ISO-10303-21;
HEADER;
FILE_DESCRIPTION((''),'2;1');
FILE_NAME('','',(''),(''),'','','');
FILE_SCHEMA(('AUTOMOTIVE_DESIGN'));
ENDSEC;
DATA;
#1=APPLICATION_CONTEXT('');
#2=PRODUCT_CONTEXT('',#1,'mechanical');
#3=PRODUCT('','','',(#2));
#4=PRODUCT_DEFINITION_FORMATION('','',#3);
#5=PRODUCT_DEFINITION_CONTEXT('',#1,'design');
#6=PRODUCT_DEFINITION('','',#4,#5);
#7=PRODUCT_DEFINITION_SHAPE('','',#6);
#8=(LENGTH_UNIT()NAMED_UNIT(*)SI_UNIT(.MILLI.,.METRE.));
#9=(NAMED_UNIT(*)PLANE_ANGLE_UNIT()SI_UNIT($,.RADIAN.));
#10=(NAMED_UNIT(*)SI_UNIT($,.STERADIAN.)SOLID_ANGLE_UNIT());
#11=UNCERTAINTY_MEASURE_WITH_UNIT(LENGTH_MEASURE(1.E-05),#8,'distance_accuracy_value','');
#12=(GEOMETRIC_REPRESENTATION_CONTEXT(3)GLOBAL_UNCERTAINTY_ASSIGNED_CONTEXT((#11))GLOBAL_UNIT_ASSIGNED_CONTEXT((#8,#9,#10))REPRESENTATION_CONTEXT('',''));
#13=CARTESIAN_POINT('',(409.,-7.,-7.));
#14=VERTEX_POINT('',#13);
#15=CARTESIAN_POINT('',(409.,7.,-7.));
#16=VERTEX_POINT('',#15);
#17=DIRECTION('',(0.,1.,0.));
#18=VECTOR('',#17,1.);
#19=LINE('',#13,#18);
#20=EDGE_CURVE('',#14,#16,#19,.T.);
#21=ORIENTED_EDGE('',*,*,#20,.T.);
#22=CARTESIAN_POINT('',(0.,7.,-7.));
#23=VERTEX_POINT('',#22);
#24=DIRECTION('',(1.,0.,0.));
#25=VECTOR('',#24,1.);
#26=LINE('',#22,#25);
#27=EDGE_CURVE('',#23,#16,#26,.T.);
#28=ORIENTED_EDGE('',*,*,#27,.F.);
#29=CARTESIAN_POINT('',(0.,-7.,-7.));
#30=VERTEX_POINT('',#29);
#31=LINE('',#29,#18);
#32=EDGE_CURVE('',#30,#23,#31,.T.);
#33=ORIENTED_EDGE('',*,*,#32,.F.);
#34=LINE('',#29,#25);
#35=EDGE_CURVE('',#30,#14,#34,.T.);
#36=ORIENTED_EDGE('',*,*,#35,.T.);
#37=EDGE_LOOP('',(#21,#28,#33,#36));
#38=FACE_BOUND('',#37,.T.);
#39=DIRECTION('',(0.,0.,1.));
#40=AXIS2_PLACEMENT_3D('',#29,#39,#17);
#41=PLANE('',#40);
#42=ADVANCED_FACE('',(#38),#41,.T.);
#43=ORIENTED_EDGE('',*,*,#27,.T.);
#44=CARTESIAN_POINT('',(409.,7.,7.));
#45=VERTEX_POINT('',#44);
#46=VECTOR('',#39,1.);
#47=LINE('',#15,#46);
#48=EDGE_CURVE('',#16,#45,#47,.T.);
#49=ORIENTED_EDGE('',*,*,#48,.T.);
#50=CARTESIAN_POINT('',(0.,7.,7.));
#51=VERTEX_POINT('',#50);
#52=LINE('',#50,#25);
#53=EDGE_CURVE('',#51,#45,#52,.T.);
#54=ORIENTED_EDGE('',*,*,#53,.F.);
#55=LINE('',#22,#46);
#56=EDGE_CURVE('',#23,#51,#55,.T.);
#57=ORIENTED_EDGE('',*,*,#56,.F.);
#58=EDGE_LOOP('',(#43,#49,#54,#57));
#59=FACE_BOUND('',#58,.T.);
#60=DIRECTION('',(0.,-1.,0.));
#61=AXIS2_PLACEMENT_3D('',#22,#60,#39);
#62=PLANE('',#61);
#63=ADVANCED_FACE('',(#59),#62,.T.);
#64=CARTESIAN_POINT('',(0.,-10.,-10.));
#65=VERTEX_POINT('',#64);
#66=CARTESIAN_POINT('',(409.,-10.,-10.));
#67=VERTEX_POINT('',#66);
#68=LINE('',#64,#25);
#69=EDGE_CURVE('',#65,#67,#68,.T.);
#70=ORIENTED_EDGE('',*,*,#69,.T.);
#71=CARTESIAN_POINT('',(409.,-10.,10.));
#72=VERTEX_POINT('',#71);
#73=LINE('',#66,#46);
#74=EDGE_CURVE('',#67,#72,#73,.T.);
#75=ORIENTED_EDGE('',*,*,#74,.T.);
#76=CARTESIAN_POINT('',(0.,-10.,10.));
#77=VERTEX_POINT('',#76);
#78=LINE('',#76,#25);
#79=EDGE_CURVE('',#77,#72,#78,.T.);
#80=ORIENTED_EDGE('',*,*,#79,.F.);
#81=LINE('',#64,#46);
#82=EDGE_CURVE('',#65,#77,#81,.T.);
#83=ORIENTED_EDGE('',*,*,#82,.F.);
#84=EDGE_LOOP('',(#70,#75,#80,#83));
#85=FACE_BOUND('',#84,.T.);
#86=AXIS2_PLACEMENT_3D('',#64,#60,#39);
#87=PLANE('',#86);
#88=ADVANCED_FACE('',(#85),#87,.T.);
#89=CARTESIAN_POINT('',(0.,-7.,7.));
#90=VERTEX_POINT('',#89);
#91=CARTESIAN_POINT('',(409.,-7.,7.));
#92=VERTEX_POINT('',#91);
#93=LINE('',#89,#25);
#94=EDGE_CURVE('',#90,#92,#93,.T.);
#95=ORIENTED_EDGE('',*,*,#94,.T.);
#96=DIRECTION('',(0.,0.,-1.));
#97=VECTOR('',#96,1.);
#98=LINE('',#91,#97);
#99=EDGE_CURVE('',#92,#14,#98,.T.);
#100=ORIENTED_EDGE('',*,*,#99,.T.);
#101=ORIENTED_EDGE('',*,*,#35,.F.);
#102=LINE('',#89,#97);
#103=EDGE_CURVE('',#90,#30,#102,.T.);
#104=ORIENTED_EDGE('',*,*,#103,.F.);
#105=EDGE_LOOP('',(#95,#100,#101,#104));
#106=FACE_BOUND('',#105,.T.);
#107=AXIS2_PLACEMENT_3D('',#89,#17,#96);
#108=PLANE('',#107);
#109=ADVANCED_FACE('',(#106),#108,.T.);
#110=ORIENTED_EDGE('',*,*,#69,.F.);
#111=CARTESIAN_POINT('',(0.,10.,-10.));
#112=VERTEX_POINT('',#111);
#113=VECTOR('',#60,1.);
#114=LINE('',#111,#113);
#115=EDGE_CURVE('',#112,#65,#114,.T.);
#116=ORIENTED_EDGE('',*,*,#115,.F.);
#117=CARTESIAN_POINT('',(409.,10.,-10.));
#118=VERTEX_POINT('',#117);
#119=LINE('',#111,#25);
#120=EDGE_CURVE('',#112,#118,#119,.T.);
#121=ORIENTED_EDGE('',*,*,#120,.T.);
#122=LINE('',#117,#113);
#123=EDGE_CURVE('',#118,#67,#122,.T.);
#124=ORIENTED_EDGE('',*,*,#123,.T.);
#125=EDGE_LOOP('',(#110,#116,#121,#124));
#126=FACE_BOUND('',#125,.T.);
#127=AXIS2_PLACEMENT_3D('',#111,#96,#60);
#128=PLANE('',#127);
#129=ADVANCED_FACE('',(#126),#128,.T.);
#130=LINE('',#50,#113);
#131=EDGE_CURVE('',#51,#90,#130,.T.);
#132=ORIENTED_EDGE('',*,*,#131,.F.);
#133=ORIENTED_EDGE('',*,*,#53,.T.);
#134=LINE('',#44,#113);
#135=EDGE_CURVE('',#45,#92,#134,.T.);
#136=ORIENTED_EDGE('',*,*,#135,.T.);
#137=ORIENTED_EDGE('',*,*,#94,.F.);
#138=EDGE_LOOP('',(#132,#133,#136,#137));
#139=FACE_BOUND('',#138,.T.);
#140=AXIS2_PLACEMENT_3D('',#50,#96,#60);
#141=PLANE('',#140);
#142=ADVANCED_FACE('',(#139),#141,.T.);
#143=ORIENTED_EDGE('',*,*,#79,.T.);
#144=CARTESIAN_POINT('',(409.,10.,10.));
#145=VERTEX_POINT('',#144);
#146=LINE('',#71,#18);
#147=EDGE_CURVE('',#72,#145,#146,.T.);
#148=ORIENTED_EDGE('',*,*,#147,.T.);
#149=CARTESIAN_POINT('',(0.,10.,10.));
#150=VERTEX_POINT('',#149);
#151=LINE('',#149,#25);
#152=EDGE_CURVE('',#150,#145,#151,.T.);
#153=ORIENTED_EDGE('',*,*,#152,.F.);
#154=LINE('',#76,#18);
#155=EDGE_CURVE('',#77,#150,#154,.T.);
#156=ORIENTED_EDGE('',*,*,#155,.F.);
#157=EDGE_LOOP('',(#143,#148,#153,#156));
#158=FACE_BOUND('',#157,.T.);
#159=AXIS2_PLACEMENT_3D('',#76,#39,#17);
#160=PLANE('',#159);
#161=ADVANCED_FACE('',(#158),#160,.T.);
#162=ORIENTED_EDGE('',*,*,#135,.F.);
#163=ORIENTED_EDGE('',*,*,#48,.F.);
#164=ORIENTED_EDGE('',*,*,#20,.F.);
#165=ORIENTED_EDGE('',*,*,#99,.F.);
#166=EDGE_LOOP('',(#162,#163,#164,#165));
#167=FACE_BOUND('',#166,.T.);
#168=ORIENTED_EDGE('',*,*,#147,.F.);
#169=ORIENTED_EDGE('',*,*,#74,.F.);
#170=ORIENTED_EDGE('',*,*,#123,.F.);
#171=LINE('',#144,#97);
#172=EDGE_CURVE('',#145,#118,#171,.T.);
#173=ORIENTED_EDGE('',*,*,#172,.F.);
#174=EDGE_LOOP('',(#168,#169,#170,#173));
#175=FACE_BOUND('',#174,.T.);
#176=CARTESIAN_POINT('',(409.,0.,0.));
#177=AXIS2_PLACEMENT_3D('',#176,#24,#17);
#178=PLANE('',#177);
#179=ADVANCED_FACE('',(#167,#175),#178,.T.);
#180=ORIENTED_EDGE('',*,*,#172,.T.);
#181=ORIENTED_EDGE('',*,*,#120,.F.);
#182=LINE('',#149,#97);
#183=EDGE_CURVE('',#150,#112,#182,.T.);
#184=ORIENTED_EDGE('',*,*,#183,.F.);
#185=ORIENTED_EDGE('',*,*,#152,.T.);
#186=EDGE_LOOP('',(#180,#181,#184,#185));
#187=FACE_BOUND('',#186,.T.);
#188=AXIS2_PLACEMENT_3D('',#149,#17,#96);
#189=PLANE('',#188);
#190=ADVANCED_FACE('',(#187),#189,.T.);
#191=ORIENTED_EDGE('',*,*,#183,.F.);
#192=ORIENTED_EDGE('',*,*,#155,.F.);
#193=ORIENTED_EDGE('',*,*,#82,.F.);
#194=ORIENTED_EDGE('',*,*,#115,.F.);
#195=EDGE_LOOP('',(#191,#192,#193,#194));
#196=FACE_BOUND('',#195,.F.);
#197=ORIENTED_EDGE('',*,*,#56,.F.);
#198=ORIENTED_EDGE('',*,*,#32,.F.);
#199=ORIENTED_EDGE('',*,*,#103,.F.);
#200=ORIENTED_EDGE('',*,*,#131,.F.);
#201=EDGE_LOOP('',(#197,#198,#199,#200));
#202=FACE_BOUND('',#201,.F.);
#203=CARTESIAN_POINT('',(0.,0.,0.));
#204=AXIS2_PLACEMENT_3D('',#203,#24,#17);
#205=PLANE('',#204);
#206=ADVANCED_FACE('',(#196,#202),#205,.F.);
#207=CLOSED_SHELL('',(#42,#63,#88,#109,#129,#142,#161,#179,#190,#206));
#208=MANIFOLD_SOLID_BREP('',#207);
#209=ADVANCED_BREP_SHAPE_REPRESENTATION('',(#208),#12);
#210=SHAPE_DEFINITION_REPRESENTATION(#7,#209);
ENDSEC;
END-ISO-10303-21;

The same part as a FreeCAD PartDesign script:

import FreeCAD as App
import Part
import Sketcher

V = App.Vector
Q = App.Units.Quantity

doc = App.newDocument("Part")
params = doc.addObject("Spreadsheet::Sheet", "Params")
for row, (alias, value) in enumerate([
    ("sketch1_width", "20 mm"),
    ("pad1_length", "409 mm"),
], start=1):
    params.set(f"A{row}", alias)
    params.set(f"B{row}", "=" + value)
    params.setAlias(f"B{row}", alias)

body = doc.addObject("PartDesign::Body", "Body")

# Sketch on YZ plane
sketch1 = body.newObject("Sketcher::SketchObject", "Sketch")
sketch1.AttachmentSupport = (doc.getObject("YZ_Plane"), [""])
sketch1.MapMode = "FlatFace"
sketch1.addGeometry(Part.LineSegment(V(10, 10, 0), V(-10, 10, 0)), False)
sketch1.addGeometry(Part.LineSegment(V(-10, 10, 0), V(-10, -10, 0)), False)
sketch1.addGeometry(Part.LineSegment(V(-10, -10, 0), V(10, -10, 0)), False)
sketch1.addGeometry(Part.LineSegment(V(10, -10, 0), V(10, 10, 0)), False)
sketch1.addGeometry(Part.LineSegment(V(7, 7, 0), V(7, -7, 0)), False)
sketch1.addGeometry(Part.LineSegment(V(7, -7, 0), V(-7, -7, 0)), False)
sketch1.addGeometry(Part.LineSegment(V(-7, -7, 0), V(-7, 7, 0)), False)
sketch1.addGeometry(Part.LineSegment(V(-7, 7, 0), V(7, 7, 0)), False)
sketch1.addConstraint(Sketcher.Constraint("Coincident", 0, 2, 1, 1))
sketch1.addConstraint(Sketcher.Constraint("Coincident", 1, 2, 2, 1))
sketch1.addConstraint(Sketcher.Constraint("Coincident", 2, 2, 3, 1))
sketch1.addConstraint(Sketcher.Constraint("Coincident", 3, 2, 0, 1))
sketch1.addConstraint(Sketcher.Constraint("Coincident", 4, 2, 5, 1))
sketch1.addConstraint(Sketcher.Constraint("Coincident", 5, 2, 6, 1))
sketch1.addConstraint(Sketcher.Constraint("Coincident", 6, 2, 7, 1))
sketch1.addConstraint(Sketcher.Constraint("Coincident", 7, 2, 4, 1))
sketch1.addConstraint(Sketcher.Constraint("Horizontal", 0))
sketch1.addConstraint(Sketcher.Constraint("Vertical", 1))
sketch1.addConstraint(Sketcher.Constraint("Horizontal", 2))
sketch1.addConstraint(Sketcher.Constraint("Vertical", 3))
sketch1.addConstraint(Sketcher.Constraint("Vertical", 4))
sketch1.addConstraint(Sketcher.Constraint("Horizontal", 5))
sketch1.addConstraint(Sketcher.Constraint("Vertical", 6))
sketch1.addConstraint(Sketcher.Constraint("Horizontal", 7))
sketch1.addConstraint(Sketcher.Constraint("Symmetric", 0, 2, 2, 2, -1, 1))
sketch1.addConstraint(Sketcher.Constraint("Symmetric", 4, 2, 6, 2, -1, 1))
sketch1.addConstraint(Sketcher.Constraint("Equal", 2, 1))
sketch1.addConstraint(Sketcher.Constraint("Equal", 7, 4))
sketch1.addConstraint(Sketcher.Constraint("DistanceX", 0, 2, 0, 1, Q("20 mm")))
sketch1.addConstraint(Sketcher.Constraint("DistanceX", 4, 2, 2, 2, Q("3 mm")))
sketch1.setExpression("Constraints[20]", "Params.sketch1_width")
pad1 = body.newObject("PartDesign::Pad", "Pad")
pad1.Profile = sketch1
pad1.setExpression("Length", "Params.pad1_length")

doc.recompute()
